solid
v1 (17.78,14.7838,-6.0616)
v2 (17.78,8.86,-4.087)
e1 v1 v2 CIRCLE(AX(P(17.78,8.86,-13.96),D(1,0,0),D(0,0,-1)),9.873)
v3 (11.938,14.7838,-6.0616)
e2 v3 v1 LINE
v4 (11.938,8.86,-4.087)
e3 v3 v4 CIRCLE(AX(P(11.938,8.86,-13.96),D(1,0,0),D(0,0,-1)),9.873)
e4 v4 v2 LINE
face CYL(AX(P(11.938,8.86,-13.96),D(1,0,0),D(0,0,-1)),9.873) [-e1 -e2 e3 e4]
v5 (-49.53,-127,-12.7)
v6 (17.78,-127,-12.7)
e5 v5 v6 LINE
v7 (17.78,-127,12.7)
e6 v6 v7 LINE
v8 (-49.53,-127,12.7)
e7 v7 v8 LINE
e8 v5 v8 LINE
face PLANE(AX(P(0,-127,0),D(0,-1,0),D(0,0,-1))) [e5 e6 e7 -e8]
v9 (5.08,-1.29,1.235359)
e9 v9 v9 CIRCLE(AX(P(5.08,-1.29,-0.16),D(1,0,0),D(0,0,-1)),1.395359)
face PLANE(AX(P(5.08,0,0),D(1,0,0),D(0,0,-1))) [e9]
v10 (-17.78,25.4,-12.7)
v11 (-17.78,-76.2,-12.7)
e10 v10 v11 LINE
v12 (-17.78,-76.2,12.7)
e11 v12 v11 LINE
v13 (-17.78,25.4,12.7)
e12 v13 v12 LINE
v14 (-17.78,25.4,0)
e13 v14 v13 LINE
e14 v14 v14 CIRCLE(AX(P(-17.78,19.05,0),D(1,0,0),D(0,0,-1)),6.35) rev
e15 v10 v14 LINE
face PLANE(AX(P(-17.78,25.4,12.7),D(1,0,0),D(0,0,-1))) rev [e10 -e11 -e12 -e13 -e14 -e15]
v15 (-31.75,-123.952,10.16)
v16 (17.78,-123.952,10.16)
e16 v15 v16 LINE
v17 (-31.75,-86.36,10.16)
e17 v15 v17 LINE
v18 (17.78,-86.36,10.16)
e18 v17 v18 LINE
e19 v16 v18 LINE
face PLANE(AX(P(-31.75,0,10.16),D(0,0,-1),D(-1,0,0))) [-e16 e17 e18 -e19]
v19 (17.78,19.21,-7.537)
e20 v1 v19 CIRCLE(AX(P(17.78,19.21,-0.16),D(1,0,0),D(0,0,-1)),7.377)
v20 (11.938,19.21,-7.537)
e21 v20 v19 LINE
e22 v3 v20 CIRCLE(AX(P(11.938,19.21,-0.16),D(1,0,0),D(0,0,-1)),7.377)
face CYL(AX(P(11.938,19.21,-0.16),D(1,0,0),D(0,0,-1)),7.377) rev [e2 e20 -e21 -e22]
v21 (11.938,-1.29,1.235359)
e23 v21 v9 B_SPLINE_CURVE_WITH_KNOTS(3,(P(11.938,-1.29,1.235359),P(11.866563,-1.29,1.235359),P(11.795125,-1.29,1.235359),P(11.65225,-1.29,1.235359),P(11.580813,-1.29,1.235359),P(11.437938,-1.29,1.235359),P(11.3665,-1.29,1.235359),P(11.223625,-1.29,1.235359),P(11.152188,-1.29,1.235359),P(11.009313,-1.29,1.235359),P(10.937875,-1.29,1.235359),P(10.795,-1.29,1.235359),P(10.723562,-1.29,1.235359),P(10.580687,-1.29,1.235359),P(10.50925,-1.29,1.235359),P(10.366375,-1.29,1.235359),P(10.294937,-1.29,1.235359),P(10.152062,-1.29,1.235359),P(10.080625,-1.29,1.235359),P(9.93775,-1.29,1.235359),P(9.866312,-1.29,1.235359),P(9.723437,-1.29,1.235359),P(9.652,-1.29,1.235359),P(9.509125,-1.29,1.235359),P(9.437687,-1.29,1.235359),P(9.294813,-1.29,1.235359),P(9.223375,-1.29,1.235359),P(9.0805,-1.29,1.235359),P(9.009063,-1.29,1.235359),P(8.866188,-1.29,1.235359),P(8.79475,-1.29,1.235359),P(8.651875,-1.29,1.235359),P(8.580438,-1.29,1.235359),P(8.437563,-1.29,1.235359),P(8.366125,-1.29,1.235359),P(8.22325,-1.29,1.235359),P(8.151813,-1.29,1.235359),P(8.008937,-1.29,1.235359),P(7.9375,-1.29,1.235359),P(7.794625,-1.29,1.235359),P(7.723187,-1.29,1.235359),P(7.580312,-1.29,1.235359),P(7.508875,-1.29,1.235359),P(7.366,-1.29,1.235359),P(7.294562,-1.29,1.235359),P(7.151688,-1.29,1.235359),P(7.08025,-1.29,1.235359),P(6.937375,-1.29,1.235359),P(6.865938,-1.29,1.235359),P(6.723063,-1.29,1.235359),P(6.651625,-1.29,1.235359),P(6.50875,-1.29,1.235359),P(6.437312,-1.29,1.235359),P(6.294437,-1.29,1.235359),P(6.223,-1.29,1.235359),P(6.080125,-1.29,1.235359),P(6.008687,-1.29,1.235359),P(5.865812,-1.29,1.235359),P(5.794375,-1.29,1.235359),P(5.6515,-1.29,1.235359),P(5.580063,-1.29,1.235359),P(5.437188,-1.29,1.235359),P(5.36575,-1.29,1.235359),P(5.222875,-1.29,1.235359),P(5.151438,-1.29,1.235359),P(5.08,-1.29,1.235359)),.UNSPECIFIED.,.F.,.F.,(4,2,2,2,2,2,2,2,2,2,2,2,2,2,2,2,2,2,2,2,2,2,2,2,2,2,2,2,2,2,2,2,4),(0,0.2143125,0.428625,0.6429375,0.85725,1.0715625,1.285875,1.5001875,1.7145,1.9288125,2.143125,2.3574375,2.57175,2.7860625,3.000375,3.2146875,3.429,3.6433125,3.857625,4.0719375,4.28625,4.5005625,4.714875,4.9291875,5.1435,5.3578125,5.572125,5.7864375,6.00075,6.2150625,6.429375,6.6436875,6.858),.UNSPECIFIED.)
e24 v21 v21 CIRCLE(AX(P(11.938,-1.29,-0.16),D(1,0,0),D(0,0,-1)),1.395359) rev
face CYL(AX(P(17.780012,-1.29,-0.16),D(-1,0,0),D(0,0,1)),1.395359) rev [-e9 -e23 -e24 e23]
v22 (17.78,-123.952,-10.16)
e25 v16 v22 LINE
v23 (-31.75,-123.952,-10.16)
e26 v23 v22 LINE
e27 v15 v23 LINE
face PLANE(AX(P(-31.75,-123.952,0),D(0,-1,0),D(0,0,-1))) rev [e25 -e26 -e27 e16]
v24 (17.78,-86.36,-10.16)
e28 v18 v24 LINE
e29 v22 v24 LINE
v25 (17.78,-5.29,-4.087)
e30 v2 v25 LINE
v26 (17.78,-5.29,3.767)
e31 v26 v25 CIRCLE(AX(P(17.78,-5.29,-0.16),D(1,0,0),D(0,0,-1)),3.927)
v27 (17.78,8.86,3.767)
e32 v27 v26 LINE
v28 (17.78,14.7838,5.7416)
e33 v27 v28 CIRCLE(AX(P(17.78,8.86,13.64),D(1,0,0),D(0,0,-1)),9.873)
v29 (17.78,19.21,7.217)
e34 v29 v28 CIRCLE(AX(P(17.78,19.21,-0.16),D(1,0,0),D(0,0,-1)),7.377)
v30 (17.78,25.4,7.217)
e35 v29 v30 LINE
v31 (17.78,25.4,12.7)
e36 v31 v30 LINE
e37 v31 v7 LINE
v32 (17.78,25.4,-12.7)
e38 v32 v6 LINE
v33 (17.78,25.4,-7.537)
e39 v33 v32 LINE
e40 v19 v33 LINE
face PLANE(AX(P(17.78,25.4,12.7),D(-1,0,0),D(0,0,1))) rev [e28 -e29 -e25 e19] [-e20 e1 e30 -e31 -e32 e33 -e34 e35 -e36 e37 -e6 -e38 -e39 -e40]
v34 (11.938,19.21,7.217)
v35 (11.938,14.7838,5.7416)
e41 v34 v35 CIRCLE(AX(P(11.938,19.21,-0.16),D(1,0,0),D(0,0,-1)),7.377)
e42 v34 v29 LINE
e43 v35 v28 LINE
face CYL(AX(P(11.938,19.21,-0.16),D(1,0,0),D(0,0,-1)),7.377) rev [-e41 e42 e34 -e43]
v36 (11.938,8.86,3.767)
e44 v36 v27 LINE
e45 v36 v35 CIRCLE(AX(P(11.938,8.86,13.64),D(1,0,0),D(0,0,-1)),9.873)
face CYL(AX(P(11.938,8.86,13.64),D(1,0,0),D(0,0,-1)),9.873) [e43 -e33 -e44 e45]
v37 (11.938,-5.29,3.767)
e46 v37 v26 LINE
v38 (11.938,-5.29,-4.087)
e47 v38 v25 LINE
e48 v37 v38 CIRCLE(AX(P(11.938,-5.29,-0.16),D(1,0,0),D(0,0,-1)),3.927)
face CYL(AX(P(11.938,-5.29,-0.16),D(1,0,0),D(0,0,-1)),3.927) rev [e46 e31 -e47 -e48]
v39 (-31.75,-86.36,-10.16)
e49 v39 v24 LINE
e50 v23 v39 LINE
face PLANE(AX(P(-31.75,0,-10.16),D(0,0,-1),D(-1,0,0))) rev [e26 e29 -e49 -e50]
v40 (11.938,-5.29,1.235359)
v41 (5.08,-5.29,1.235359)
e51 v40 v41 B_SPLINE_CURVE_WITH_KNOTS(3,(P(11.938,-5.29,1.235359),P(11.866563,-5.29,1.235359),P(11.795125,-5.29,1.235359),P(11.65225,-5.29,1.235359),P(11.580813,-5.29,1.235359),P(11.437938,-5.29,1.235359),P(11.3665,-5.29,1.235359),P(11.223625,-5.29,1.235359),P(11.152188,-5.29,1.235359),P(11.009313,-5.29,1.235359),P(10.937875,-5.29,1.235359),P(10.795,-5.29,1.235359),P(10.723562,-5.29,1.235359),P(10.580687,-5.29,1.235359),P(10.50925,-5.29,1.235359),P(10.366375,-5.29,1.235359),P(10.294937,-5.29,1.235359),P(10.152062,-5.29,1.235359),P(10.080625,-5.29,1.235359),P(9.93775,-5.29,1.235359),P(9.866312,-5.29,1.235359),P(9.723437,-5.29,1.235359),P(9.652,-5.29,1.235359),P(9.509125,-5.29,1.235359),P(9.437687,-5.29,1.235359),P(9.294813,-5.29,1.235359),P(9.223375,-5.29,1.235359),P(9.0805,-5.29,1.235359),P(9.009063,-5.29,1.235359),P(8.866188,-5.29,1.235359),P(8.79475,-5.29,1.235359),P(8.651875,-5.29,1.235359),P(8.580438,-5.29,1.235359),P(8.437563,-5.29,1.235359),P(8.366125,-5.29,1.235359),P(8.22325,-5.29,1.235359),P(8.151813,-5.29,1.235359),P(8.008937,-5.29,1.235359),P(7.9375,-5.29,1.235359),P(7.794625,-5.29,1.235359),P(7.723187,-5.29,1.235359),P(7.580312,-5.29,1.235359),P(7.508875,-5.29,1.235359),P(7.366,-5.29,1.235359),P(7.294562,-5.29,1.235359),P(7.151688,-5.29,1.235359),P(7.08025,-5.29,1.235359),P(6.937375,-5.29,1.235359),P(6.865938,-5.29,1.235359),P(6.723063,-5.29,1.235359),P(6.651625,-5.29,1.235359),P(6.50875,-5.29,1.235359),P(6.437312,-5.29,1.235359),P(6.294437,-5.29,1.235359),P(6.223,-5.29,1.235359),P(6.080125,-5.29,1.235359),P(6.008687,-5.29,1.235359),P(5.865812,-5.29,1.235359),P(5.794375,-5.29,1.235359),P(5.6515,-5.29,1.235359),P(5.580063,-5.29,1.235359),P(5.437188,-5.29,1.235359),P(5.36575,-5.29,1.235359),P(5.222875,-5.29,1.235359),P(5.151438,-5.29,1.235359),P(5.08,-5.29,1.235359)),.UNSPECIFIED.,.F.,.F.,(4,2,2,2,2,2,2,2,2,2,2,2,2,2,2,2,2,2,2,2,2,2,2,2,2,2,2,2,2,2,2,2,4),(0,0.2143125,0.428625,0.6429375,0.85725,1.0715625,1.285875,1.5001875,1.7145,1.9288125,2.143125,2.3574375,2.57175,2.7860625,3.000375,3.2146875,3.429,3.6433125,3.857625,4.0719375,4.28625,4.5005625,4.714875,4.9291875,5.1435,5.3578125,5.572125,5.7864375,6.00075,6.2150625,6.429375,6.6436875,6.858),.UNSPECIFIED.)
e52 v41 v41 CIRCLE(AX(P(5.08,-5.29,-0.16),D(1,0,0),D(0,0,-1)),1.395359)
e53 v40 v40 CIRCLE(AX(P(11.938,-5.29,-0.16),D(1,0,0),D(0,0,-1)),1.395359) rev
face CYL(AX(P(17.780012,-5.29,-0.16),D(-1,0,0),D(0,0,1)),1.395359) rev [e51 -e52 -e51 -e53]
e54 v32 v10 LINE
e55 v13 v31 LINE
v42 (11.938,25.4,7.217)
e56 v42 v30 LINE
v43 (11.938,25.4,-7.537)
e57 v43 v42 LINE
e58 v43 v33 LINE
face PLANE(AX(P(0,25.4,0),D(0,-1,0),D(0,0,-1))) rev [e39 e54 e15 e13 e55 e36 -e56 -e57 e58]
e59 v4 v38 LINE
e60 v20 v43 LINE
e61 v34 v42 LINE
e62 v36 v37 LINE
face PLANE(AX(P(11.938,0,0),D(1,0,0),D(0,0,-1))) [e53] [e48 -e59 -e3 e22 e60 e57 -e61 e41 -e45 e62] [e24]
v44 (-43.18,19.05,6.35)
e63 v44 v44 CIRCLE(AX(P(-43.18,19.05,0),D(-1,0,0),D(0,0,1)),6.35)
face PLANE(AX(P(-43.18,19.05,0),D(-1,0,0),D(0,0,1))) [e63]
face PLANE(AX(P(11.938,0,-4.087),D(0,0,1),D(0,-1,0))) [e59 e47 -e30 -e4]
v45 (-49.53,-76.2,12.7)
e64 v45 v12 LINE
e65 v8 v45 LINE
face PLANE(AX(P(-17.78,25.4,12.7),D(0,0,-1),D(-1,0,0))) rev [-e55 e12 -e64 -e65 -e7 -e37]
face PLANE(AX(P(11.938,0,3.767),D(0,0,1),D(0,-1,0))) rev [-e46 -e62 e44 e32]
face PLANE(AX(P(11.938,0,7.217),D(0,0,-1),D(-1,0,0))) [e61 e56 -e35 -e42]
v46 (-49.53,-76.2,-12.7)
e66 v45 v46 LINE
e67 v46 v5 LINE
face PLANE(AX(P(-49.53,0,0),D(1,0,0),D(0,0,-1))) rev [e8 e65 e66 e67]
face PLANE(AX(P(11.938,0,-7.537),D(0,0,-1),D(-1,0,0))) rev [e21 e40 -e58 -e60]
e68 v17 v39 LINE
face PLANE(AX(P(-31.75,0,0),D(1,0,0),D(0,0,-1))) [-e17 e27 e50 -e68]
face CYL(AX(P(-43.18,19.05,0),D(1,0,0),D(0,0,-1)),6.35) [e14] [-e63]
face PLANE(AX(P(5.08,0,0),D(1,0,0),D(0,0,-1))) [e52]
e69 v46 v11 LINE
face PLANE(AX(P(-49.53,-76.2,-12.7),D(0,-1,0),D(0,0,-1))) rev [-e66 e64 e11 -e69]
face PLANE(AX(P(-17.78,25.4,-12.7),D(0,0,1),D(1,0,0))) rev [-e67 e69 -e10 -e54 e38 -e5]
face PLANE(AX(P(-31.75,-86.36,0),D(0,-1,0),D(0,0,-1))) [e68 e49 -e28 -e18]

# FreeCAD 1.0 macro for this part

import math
import FreeCAD as App
import Part
import Sketcher

V = App.Vector
Q = App.Units.Quantity

doc = App.newDocument("Part")
body = doc.addObject("PartDesign::Body", "Body")

# Sketch on XZ plane
sketch1 = body.newObject("Sketcher::SketchObject", "Sketch")
sketch1.AttachmentSupport = (doc.getObject("XZ_Plane"), [""])
sketch1.MapMode = "FlatFace"
sketch1.addGeometry(Part.LineSegment(V(-17.78, -12.7, 0), V(-17.78, 12.7, 0)), False)
sketch1.addGeometry(Part.LineSegment(V(-17.78, 12.7, 0), V(17.78, 12.7, 0)), False)
sketch1.addGeometry(Part.LineSegment(V(17.78, 12.7, 0), V(17.78, -12.7, 0)), False)
sketch1.addGeometry(Part.LineSegment(V(17.78, -12.7, 0), V(-17.78, -12.7, 0)), False)
sketch1.addConstraint(Sketcher.Constraint("Coincident", 0, 2, 1, 1))
sketch1.addConstraint(Sketcher.Constraint("Coincident", 1, 2, 2, 1))
sketch1.addConstraint(Sketcher.Constraint("Coincident", 2, 2, 3, 1))
sketch1.addConstraint(Sketcher.Constraint("Coincident", 3, 2, 0, 1))
sketch1.addConstraint(Sketcher.Constraint("Vertical", 0))
sketch1.addConstraint(Sketcher.Constraint("Horizontal", 1))
sketch1.addConstraint(Sketcher.Constraint("Vertical", 2))
sketch1.addConstraint(Sketcher.Constraint("Horizontal", 3))
sketch1.addConstraint(Sketcher.Constraint("Symmetric", 0, 2, 2, 2, -1, 1))
sketch1.addConstraint(Sketcher.Constraint("DistanceY", 0, 1, 0, 2, Q("1 in")))
sketch1.addConstraint(Sketcher.Constraint("DistanceX", 1, 1, 1, 2, Q("1.4 in")))
pad1 = body.newObject("PartDesign::Pad", "Pad")
pad1.Profile = sketch1
pad1.Length = Q("2 in")
pad1.Midplane = True

# Sketch on YZ plane
sketch2 = body.newObject("Sketcher::SketchObject", "Sketch001")
sketch2.AttachmentSupport = (doc.getObject("YZ_Plane"), [""])
sketch2.MapMode = "FlatFace"
sketch2.AttachmentOffset = App.Placement(V(0, 0, -0.7 * 25.4), App.Rotation())
sketch2.addGeometry(Part.Circle(V(19.05, 0, 0), V(0, 0, 1), 6.35), False)
sketch2.addConstraint(Sketcher.Constraint("PointOnObject", 0, 3, -1))
sketch2.addConstraint(Sketcher.Constraint("Diameter", 0, Q("0.5 in")))
sketch2.addConstraint(Sketcher.Constraint("DistanceX", -1, 1, 0, 3, Q("0.75 in")))
pad2 = body.newObject("PartDesign::Pad", "Pad001")
pad2.Profile = sketch2
pad2.Length = Q("2 in")
pad2.Midplane = True

# Sketch on YZ plane
sketch3 = body.newObject("Sketcher::SketchObject", "Sketch002")
sketch3.AttachmentSupport = (doc.getObject("YZ_Plane"), [""])
sketch3.MapMode = "FlatFace"
sketch3.AttachmentOffset = App.Placement(V(0, 0, 0.7 * 25.4), App.Rotation())
sketch3.addGeometry(Part.ArcOfCircle(Part.Circle(V(8.86, 13.64, 0), V(0, 0, 1), 9.873), math.radians(-90), math.radians(-53.130102)), False)
sketch3.addGeometry(Part.LineSegment(V(8.86, 3.767, 0), V(-5.29, 3.767, 0)), False)
sketch3.addGeometry(Part.ArcOfCircle(Part.Circle(V(-5.29, -0.16, 0), V(0, 0, 1), 3.927), math.radians(90), math.radians(270)), False)
sketch3.addGeometry(Part.LineSegment(V(-5.29, -4.087, 0), V(8.86, -4.087, 0)), False)
sketch3.addGeometry(Part.ArcOfCircle(Part.Circle(V(8.86, -13.96, 0), V(0, 0, 1), 9.873), math.radians(53.130102), math.radians(90)), False)
sketch3.addGeometry(Part.ArcOfCircle(Part.Circle(V(19.21, -0.16, 0), V(0, 0, 1), 7.377), math.radians(-126.869898), math.radians(-90)), False)
sketch3.addGeometry(Part.LineSegment(V(19.21, -7.537, 0), V(26.587, -7.537, 0)), False)
sketch3.addGeometry(Part.LineSegment(V(26.587, -7.537, 0), V(26.587, 7.217, 0)), False)
sketch3.addGeometry(Part.LineSegment(V(26.587, 7.217, 0), V(19.21, 7.217, 0)), False)
sketch3.addGeometry(Part.ArcOfCircle(Part.Circle(V(19.21, -0.16, 0), V(0, 0, 1), 7.377), math.radians(90), math.radians(126.869898)), False)
sketch3.addGeometry(Part.Circle(V(-5.29, -0.16, 0), V(0, 0, 1), 1.395359), False)
sketch3.addGeometry(Part.Circle(V(-1.29, -0.16, 0), V(0, 0, 1), 1.395359), False)
sketch3.addConstraint(Sketcher.Constraint("Tangent", 0, 1, 1, 1))
sketch3.addConstraint(Sketcher.Constraint("Tangent", 1, 2, 2, 1))
sketch3.addConstraint(Sketcher.Constraint("Tangent", 2, 2, 3, 1))
sketch3.addConstraint(Sketcher.Constraint("Tangent", 3, 2, 4, 2))
sketch3.addConstraint(Sketcher.Constraint("Tangent", 4, 1, 5, 1))
sketch3.addConstraint(Sketcher.Constraint("Tangent", 5, 2, 6, 1))
sketch3.addConstraint(Sketcher.Constraint("Coincident", 6, 2, 7, 1))
sketch3.addConstraint(Sketcher.Constraint("Coincident", 7, 2, 8, 1))
sketch3.addConstraint(Sketcher.Constraint("Tangent", 8, 2, 9, 1))
sketch3.addConstraint(Sketcher.Constraint("Tangent", 9, 2, 0, 2))
sketch3.addConstraint(Sketcher.Constraint("Horizontal", 1))
sketch3.addConstraint(Sketcher.Constraint("Horizontal", 3))
sketch3.addConstraint(Sketcher.Constraint("Horizontal", 6))
sketch3.addConstraint(Sketcher.Constraint("Vertical", 7))
sketch3.addConstraint(Sketcher.Constraint("Horizontal", 8))
sketch3.addConstraint(Sketcher.Constraint("Coincident", 9, 3, 5, 3))
sketch3.addConstraint(Sketcher.Constraint("Coincident", 10, 3, 2, 3))
sketch3.addConstraint(Sketcher.Constraint("Equal", 0, 4))
sketch3.addConstraint(Sketcher.Constraint("Equal", 5, 9))
sketch3.addConstraint(Sketcher.Constraint("Equal", 10, 11))
sketch3.addConstraint(Sketcher.Constraint("Horizontal", 2, 3, 5, 3))
sketch3.addConstraint(Sketcher.Constraint("Horizontal", 10, 3, 11, 3))
sketch3.addConstraint(Sketcher.Constraint("Radius", 0, 9.873))
sketch3.addConstraint(Sketcher.Constraint("Radius", 2, 3.927))
sketch3.addConstraint(Sketcher.Constraint("Radius", 5, 7.377))
sketch3.addConstraint(Sketcher.Constraint("Diameter", 10, 2.790718))
sketch3.addConstraint(Sketcher.Constraint("DistanceX", 1, 2, 1, 1, 14.15))
sketch3.addConstraint(Sketcher.Constraint("DistanceX", 6, 1, 6, 2, 7.377))
sketch3.addConstraint(Sketcher.Constraint("DistanceX", -1, 1, 0, 3, 8.86))
sketch3.addConstraint(Sketcher.Constraint("DistanceY", -1, 1, 0, 3, 13.64))
sketch3.addConstraint(Sketcher.Constraint("DistanceX", 11, 3, -1, 1, 1.29))
pocket1 = body.newObject("PartDesign::Pocket", "Pocket")
pocket1.Profile = sketch3
pocket1.Length = Q("0.23 in")

# Sketch on XZ plane
sketch4 = body.newObject("Sketcher::SketchObject", "Sketch003")
sketch4.AttachmentSupport = (doc.getObject("XZ_Plane"), [""])
sketch4.MapMode = "FlatFace"
sketch4.AttachmentOffset = App.Placement(V(0, 0, 1 * 25.4), App.Rotation())
sketch4.addGeometry(Part.LineSegment(V(-17.78, 12.7, 0), V(-17.78, -12.7, 0)), False)
sketch4.addGeometry(Part.LineSegment(V(-17.78, -12.7, 0), V(17.78, -12.7, 0)), False)
sketch4.addGeometry(Part.LineSegment(V(17.78, -12.7, 0), V(17.78, 12.7, 0)), False)
sketch4.addGeometry(Part.LineSegment(V(17.78, 12.7, 0), V(-17.78, 12.7, 0)), False)
sketch4.addConstraint(Sketcher.Constraint("Coincident", 0, 2, 1, 1))
sketch4.addConstraint(Sketcher.Constraint("Coincident", 1, 2, 2, 1))
sketch4.addConstraint(Sketcher.Constraint("Coincident", 2, 2, 3, 1))
sketch4.addConstraint(Sketcher.Constraint("Coincident", 3, 2, 0, 1))
sketch4.addConstraint(Sketcher.Constraint("Vertical", 0))
sketch4.addConstraint(Sketcher.Constraint("Horizontal", 1))
sketch4.addConstraint(Sketcher.Constraint("Vertical", 2))
sketch4.addConstraint(Sketcher.Constraint("Horizontal", 3))
sketch4.addConstraint(Sketcher.Constraint("Symmetric", 0, 2, 2, 2, -1, 1))
sketch4.addConstraint(Sketcher.Constraint("DistanceY", 0, 2, 0, 1, Q("1 in")))
sketch4.addConstraint(Sketcher.Constraint("DistanceX", 1, 1, 1, 2, Q("1.4 in")))
pad3 = body.newObject("PartDesign::Pad", "Pad002")
pad3.Profile = sketch4
pad3.Length = Q("4 in")

# Sketch on YZ plane
sketch5 = body.newObject("Sketcher::SketchObject", "Sketch004")
sketch5.AttachmentSupport = (doc.getObject("YZ_Plane"), [""])
sketch5.MapMode = "FlatFace"
sketch5.AttachmentOffset = App.Placement(V(0, 0, 0.7 * 25.4), App.Rotation())
sketch5.addGeometry(Part.Circle(V(-1.29, -0.16, 0), V(0, 0, 1), 1.395359), False)
sketch5.addGeometry(Part.Circle(V(-5.29, -0.16, 0), V(0, 0, 1), 1.395359), False)
sketch5.addConstraint(Sketcher.Constraint("Equal", 0, 1))
sketch5.addConstraint(Sketcher.Constraint("Horizontal", 0, 3, 1, 3))
sketch5.addConstraint(Sketcher.Constraint("Diameter", 0, 2.790718))
sketch5.addConstraint(Sketcher.Constraint("DistanceX", 0, 3, -1, 1, 1.29))
sketch5.addConstraint(Sketcher.Constraint("DistanceY", 0, 3, -1, 1, 0.16))
sketch5.addConstraint(Sketcher.Constraint("DistanceX", 1, 3, -1, 1, 5.29))
pocket2 = body.newObject("PartDesign::Pocket", "Pocket001")
pocket2.Profile = sketch5
pocket2.Type = "TwoLengths"
pocket2.Length = 142.444023
pocket2.Length2 = Q("0.5 in")
pocket2.Reversed = True

# Sketch on YZ plane
sketch6 = body.newObject("Sketcher::SketchObject", "Sketch005")
sketch6.AttachmentSupport = (doc.getObject("YZ_Plane"), [""])
sketch6.MapMode = "FlatFace"
sketch6.AttachmentOffset = App.Placement(V(0, 0, -0.7 * 25.4), App.Rotation())
sketch6.addGeometry(Part.LineSegment(V(-76.2, -12.7, 0), V(-127, -12.7, 0)), False)
sketch6.addGeometry(Part.LineSegment(V(-127, -12.7, 0), V(-127, 12.7, 0)), False)
sketch6.addGeometry(Part.LineSegment(V(-127, 12.7, 0), V(-76.2, 12.7, 0)), False)
sketch6.addGeometry(Part.LineSegment(V(-76.2, 12.7, 0), V(-76.2, -12.7, 0)), False)
sketch6.addConstraint(Sketcher.Constraint("Coincident", 0, 2, 1, 1))
sketch6.addConstraint(Sketcher.Constraint("Coincident", 1, 2, 2, 1))
sketch6.addConstraint(Sketcher.Constraint("Coincident", 2, 2, 3, 1))
sketch6.addConstraint(Sketcher.Constraint("Coincident", 3, 2, 0, 1))
sketch6.addConstraint(Sketcher.Constraint("Horizontal", 0))
sketch6.addConstraint(Sketcher.Constraint("Vertical", 1))
sketch6.addConstraint(Sketcher.Constraint("Horizontal", 2))
sketch6.addConstraint(Sketcher.Constraint("Vertical", 3))
sketch6.addConstraint(Sketcher.Constraint("DistanceX", 0, 2, 0, 1, Q("2 in")))
sketch6.addConstraint(Sketcher.Constraint("DistanceY", 1, 1, 1, 2, Q("1 in")))
sketch6.addConstraint(Sketcher.Constraint("DistanceX", 0, 2, -1, 1, Q("5 in")))
sketch6.addConstraint(Sketcher.Constraint("DistanceY", 0, 2, -1, 1, Q("0.5 in")))
pad4 = body.newObject("PartDesign::Pad", "Pad003")
pad4.Profile = sketch6
pad4.Length = Q("1.25 in")
pad4.Reversed = True

# Sketch on YZ plane
sketch7 = body.newObject("Sketcher::SketchObject", "Sketch006")
sketch7.AttachmentSupport = (doc.getObject("YZ_Plane"), [""])
sketch7.MapMode = "FlatFace"
sketch7.AttachmentOffset = App.Placement(V(0, 0, 0.7 * 25.4), App.Rotation())
sketch7.addGeometry(Part.LineSegment(V(-86.36, 10.16, 0), V(-123.952, 10.16, 0)), False)
sketch7.addGeometry(Part.LineSegment(V(-123.952, 10.16, 0), V(-123.952, -10.16, 0)), False)
sketch7.addGeometry(Part.LineSegment(V(-123.952, -10.16, 0), V(-86.36, -10.16, 0)), False)
sketch7.addGeometry(Part.LineSegment(V(-86.36, -10.16, 0), V(-86.36, 10.16, 0)), False)
sketch7.addConstraint(Sketcher.Constraint("Coincident", 0, 2, 1, 1))
sketch7.addConstraint(Sketcher.Constraint("Coincident", 1, 2, 2, 1))
sketch7.addConstraint(Sketcher.Constraint("Coincident", 2, 2, 3, 1))
sketch7.addConstraint(Sketcher.Constraint("Coincident", 3, 2, 0, 1))
sketch7.addConstraint(Sketcher.Constraint("Horizontal", 0))
sketch7.addConstraint(Sketcher.Constraint("Vertical", 1))
sketch7.addConstraint(Sketcher.Constraint("Horizontal", 2))
sketch7.addConstraint(Sketcher.Constraint("Vertical", 3))
sketch7.addConstraint(Sketcher.Constraint("DistanceY", 1, 2, 1, 1, Q("0.8 in")))
sketch7.addConstraint(Sketcher.Constraint("DistanceX", 0, 2, 0, 1, Q("1.48 in")))
sketch7.addConstraint(Sketcher.Constraint("DistanceY", -1, 1, 0, 2, Q("0.4 in")))
sketch7.addConstraint(Sketcher.Constraint("DistanceX", 2, 2, -1, 1, Q("3.4 in")))
pocket3 = body.newObject("PartDesign::Pocket", "Pocket002")
pocket3.Profile = sketch7
pocket3.Length = Q("1.95 in")

doc.recompute()
